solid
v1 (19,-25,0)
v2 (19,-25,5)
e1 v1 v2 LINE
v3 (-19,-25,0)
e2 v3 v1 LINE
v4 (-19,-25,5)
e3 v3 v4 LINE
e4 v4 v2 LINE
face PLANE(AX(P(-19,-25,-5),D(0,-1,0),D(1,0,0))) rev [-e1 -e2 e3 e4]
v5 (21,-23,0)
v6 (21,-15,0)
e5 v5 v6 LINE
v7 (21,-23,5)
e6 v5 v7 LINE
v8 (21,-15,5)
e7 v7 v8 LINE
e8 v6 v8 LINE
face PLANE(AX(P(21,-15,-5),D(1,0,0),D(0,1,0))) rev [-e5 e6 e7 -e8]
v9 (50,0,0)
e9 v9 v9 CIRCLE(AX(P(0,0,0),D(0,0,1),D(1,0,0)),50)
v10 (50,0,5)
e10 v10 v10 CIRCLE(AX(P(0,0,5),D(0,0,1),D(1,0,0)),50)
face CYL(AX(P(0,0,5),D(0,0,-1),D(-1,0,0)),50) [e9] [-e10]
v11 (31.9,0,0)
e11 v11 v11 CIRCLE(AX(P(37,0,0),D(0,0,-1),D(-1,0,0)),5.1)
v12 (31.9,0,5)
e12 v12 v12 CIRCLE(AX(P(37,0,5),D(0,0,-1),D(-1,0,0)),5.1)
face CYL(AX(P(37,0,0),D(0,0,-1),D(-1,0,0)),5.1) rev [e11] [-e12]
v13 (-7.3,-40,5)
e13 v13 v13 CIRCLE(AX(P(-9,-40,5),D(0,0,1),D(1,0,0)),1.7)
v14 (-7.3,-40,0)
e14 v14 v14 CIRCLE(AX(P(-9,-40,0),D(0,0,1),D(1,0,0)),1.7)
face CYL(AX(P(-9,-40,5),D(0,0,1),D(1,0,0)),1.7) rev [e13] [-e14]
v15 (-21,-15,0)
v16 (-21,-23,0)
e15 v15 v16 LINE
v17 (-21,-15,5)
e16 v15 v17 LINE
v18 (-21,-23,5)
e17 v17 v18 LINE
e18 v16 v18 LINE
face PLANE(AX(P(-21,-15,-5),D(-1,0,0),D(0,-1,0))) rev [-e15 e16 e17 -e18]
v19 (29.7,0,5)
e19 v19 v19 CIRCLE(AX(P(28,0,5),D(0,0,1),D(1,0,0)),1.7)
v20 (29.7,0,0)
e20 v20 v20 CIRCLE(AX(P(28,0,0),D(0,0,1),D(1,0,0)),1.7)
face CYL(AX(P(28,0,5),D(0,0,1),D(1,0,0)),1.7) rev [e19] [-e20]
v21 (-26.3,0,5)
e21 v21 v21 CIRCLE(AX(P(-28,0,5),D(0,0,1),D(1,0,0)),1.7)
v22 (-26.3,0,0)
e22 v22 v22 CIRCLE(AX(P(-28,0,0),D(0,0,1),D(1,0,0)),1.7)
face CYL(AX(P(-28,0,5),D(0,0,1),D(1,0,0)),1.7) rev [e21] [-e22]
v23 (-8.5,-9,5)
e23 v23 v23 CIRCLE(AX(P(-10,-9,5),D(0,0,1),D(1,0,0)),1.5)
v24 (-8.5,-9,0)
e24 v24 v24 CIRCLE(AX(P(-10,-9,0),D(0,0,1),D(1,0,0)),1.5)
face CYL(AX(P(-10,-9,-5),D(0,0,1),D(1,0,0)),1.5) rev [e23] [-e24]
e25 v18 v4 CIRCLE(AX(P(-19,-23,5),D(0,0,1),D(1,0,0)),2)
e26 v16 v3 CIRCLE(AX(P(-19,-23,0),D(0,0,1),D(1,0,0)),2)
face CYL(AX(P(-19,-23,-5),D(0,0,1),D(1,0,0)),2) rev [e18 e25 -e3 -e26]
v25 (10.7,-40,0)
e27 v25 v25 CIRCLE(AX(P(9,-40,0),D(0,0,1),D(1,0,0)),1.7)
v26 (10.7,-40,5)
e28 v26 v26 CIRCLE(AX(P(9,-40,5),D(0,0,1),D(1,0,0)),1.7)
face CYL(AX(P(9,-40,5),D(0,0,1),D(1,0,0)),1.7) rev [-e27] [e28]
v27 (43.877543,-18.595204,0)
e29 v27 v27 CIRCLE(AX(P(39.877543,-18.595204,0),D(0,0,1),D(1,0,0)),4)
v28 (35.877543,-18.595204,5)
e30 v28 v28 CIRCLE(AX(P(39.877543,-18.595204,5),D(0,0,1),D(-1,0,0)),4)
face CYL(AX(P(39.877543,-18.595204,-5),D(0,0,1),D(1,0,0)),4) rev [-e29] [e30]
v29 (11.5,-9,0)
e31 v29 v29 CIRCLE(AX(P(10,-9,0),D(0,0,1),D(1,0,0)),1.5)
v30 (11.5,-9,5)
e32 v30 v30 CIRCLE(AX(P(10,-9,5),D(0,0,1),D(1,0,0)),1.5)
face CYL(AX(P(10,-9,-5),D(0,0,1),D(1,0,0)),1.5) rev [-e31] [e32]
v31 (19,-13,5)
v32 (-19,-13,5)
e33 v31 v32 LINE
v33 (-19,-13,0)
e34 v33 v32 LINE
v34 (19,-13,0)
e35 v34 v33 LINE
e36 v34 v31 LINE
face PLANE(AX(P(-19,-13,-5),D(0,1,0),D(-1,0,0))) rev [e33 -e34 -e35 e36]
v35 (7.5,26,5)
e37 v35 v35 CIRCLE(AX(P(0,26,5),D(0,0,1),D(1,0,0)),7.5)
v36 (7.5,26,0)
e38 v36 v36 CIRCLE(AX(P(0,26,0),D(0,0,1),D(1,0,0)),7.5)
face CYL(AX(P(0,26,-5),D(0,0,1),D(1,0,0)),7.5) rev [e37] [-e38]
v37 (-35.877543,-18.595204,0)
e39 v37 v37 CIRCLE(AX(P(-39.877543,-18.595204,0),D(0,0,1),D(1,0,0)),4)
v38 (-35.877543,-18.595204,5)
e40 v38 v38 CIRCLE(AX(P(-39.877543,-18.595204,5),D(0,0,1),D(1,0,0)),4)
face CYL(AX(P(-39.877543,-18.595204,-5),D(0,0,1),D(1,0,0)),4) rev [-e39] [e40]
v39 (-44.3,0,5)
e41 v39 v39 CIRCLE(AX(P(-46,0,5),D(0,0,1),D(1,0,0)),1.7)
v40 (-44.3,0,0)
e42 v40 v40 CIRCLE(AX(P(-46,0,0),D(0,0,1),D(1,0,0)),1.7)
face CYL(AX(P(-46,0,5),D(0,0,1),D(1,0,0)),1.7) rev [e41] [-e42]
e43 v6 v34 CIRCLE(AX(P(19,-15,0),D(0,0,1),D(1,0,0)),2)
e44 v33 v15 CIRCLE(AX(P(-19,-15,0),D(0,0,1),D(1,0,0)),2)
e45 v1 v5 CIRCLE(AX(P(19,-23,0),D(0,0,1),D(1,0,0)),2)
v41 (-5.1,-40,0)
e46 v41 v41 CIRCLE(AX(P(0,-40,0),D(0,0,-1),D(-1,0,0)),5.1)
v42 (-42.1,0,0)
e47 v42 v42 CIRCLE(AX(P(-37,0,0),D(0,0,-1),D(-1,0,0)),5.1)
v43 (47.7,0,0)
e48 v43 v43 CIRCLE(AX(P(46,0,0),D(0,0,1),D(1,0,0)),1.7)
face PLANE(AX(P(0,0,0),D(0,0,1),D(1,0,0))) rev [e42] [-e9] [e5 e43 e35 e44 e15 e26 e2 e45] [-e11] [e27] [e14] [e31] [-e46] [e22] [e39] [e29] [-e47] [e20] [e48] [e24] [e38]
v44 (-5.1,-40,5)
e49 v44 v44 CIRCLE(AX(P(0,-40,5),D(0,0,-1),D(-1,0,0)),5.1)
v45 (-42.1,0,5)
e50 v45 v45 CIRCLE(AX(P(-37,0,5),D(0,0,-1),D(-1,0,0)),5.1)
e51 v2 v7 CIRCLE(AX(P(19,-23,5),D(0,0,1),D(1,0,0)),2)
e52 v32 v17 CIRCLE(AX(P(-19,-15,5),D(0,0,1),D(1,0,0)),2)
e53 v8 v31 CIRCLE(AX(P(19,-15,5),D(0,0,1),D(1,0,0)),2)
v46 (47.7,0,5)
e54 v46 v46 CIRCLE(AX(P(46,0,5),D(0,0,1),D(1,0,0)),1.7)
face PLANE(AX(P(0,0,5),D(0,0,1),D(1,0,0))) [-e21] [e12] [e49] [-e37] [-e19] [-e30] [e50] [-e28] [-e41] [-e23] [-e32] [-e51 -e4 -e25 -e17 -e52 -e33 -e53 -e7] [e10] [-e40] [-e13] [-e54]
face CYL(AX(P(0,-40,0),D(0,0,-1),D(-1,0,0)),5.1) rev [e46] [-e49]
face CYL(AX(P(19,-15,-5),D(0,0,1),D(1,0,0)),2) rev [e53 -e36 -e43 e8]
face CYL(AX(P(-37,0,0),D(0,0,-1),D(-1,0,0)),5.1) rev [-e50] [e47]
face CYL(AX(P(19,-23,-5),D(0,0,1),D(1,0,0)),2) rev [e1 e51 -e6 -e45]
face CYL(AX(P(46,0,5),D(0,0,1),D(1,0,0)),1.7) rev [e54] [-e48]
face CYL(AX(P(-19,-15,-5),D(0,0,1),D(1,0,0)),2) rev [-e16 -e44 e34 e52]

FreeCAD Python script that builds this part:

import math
import FreeCAD as App
import Part
import Sketcher
Q = App.Units.Quantity

doc = App.newDocument("Part")
body = doc.addObject("PartDesign::Body", "Body")

# Sketch on XY plane
sketch1 = body.newObject("Sketcher::SketchObject", "Sketch")
sketch1.AttachmentSupport = (doc.getObject("XY_Plane"), [""])
sketch1.MapMode = "FlatFace"
sketch1.addGeometry(Part.Circle(App.Vector(0, 0, 0), App.Vector(0, 0, 1), 50), False)
sketch1.addConstraint([
    Sketcher.Constraint("Coincident", 0, 3, -1, 1),
    Sketcher.Constraint("Diameter", 0, Q("100 mm")),
])
pad1 = body.newObject("PartDesign::Pad", "Pad")
pad1.Profile = sketch1
pad1.Length = 5

# Sketch on XY plane
sketch2 = body.newObject("Sketcher::SketchObject", "Sketch001")
sketch2.AttachmentSupport = (doc.getObject("XY_Plane"), [""])
sketch2.MapMode = "FlatFace"
sketch2.addGeometry([
    Part.Circle(App.Vector(-37, 0, 0), App.Vector(0, 0, 1), 5),
    Part.Circle(App.Vector(37, 0, 0), App.Vector(0, 0, 1), 5),
    Part.Circle(App.Vector(0, -40, 0), App.Vector(0, 0, 1), 5),
], False)
sketch2.addConstraint([
    Sketcher.Constraint("Equal", 0, 1),
    Sketcher.Constraint("Equal", 1, 2),
    Sketcher.Constraint("Symmetric", 0, 3, 1, 3, -1, 1),
    Sketcher.Constraint("PointOnObject", 0, 3, -1),
    Sketcher.Constraint("PointOnObject", 2, 3, -2),
    Sketcher.Constraint("Diameter", 0, Q("10.2 mm")),
    Sketcher.Constraint("DistanceX", 0, 3, -1, 1, Q("37 mm")),
    Sketcher.Constraint("DistanceY", 2, 3, -1, 1, Q("40 mm")),
])
doc.recompute()
hole = body.newObject("PartDesign::Hole", "Hole")
hole.Profile = sketch2
hole.ThreadType = "None"
hole.Diameter = 10.2
hole.DepthType = "ThroughAll"
hole.Reversed = True

# Sketch on XY plane
sketch3 = body.newObject("Sketcher::SketchObject", "Sketch002")
sketch3.AttachmentSupport = (doc.getObject("XY_Plane"), [""])
sketch3.MapMode = "FlatFace"
sketch3.AttachmentOffset = App.Placement(App.Vector(0, 0, 5), App.Rotation())
sketch3.addGeometry([
    Part.Circle(App.Vector(46, 0, 0), App.Vector(0, 0, 1), 1.7),  # 0
    Part.Circle(App.Vector(28, 0, 0), App.Vector(0, 0, 1), 1.7),  # 1
    Part.Circle(App.Vector(9, -40, 0), App.Vector(0, 0, 1), 1.7),  # 2
    Part.Circle(App.Vector(-9, -40, 0), App.Vector(0, 0, 1), 1.7),  # 3
    Part.Circle(App.Vector(-46, 0, 0), App.Vector(0, 0, 1), 1.7),  # 4
    Part.Circle(App.Vector(-28, 0, 0), App.Vector(0, 0, 1), 1.7),  # 5
], False)
sketch3.addConstraint([
    Sketcher.Constraint("Equal", 0, 1),
    Sketcher.Constraint("Equal", 1, 2),
    Sketcher.Constraint("Equal", 2, 3),
    Sketcher.Constraint("Equal", 3, 4),
    Sketcher.Constraint("Equal", 4, 5),
    Sketcher.Constraint("Symmetric", 0, 3, 4, 3, -1, 1),
    Sketcher.Constraint("Symmetric", 1, 3, 5, 3, -1, 1),
    Sketcher.Constraint("Symmetric", 2, 3, 3, 3, -2),
    Sketcher.Constraint("PointOnObject", 0, 3, -1),
    Sketcher.Constraint("PointOnObject", 1, 3, -1),
    Sketcher.Constraint("Diameter", 0, Q("3.4 mm")),
    Sketcher.Constraint("DistanceX", -1, 1, 0, 3, Q("46 mm")),
    Sketcher.Constraint("DistanceX", -1, 1, 1, 3, Q("28 mm")),
    Sketcher.Constraint("DistanceX", -1, 1, 2, 3, Q("9 mm")),
    Sketcher.Constraint("DistanceY", 2, 3, -1, 1, Q("40 mm")),
])
doc.recompute()
hole2 = body.newObject("PartDesign::Hole", "Hole001")
hole2.Profile = sketch3
hole2.ThreadType = "None"
hole2.Diameter = 3.4
hole2.DepthType = "ThroughAll"

# Sketch on XY plane
sketch4 = body.newObject("Sketcher::SketchObject", "Sketch003")
sketch4.AttachmentSupport = (doc.getObject("XY_Plane"), [""])
sketch4.MapMode = "FlatFace"
sketch4.AttachmentOffset = App.Placement(App.Vector(0, 0, 5), App.Rotation())
sketch4.addGeometry(Part.Circle(App.Vector(0, 26, 0), App.Vector(0, 0, 1), 8), False)
sketch4.addConstraint([
    Sketcher.Constraint("PointOnObject", 0, 3, -2),
    Sketcher.Constraint("Diameter", 0, Q("15 mm")),
    Sketcher.Constraint("DistanceY", -1, 1, 0, 3, Q("26 mm")),
])
pocket1 = body.newObject("PartDesign::Pocket", "Pocket")
pocket1.Profile = sketch4
pocket1.Length = 10

# Sketch on XY plane
sketch5 = body.newObject("Sketcher::SketchObject", "Sketch004")
sketch5.AttachmentSupport = (doc.getObject("XY_Plane"), [""])
sketch5.MapMode = "FlatFace"
sketch5.AttachmentOffset = App.Placement(App.Vector(0, 0, 5), App.Rotation())
sketch5.addGeometry([
    Part.Circle(App.Vector(10, -9, 0), App.Vector(0, 0, 1), 1.5),  # 0
    Part.Circle(App.Vector(-10, -9, 0), App.Vector(0, 0, 1), 1.5),  # 1
    Part.LineSegment(App.Vector(19, -13, 0), App.Vector(-19, -13, 0)),  # 2
    Part.ArcOfCircle(Part.Circle(App.Vector(-19, -15, 0), App.Vector(0, 0, 1), 2), math.radians(90), math.radians(180)),  # 3
    Part.LineSegment(App.Vector(-21, -15, 0), App.Vector(-21, -23, 0)),  # 4
    Part.ArcOfCircle(Part.Circle(App.Vector(-19, -23, 0), App.Vector(0, 0, 1), 2), math.radians(-180), math.radians(-90)),  # 5
    Part.LineSegment(App.Vector(-19, -25, 0), App.Vector(19, -25, 0)),  # 6
    Part.ArcOfCircle(Part.Circle(App.Vector(19, -23, 0), App.Vector(0, 0, 1), 2), math.radians(-90), math.radians(0)),  # 7
    Part.LineSegment(App.Vector(21, -23, 0), App.Vector(21, -15, 0)),  # 8
    Part.ArcOfCircle(Part.Circle(App.Vector(19, -15, 0), App.Vector(0, 0, 1), 2), math.radians(0), math.radians(90)),  # 9
], False)
sketch5.addConstraint([
    Sketcher.Constraint("Tangent", 2, 2, 3, 1),
    Sketcher.Constraint("Tangent", 3, 2, 4, 1),
    Sketcher.Constraint("Tangent", 4, 2, 5, 1),
    Sketcher.Constraint("Tangent", 5, 2, 6, 1),
    Sketcher.Constraint("Tangent", 6, 2, 7, 1),
    Sketcher.Constraint("Tangent", 7, 2, 8, 1),
    Sketcher.Constraint("Tangent", 8, 2, 9, 1),
    Sketcher.Constraint("Tangent", 9, 2, 2, 1),
    Sketcher.Constraint("Horizontal", 2),
    Sketcher.Constraint("Vertical", 4),
    Sketcher.Constraint("Horizontal", 6),
    Sketcher.Constraint("Vertical", 8),
    Sketcher.Constraint("Equal", 0, 1),
    Sketcher.Constraint("Equal", 3, 5),
    Sketcher.Constraint("Equal", 5, 7),
    Sketcher.Constraint("Equal", 7, 9),
    Sketcher.Constraint("Symmetric", 0, 3, 1, 3, -2),
    Sketcher.Constraint("Diameter", 0, Q("3 mm")),
    Sketcher.Constraint("Radius", 3, Q("2 mm")),
    Sketcher.Constraint("DistanceX", 2, 2, 2, 1, Q("38 mm")),
    Sketcher.Constraint("DistanceY", 4, 2, 4, 1, Q("8 mm")),
    Sketcher.Constraint("DistanceX", -1, 1, 0, 3, Q("10 mm")),
    Sketcher.Constraint("DistanceY", 0, 3, -1, 1, Q("9 mm")),
    Sketcher.Constraint("DistanceX", 3, 3, -1, 1, Q("19 mm")),
    Sketcher.Constraint("DistanceY", 3, 3, -1, 1, Q("15 mm")),
])
pocket2 = body.newObject("PartDesign::Pocket", "Pocket001")
pocket2.Profile = sketch5
pocket2.Length = 10

# Sketch on XY plane
sketch6 = body.newObject("Sketcher::SketchObject", "Sketch005")
sketch6.AttachmentSupport = (doc.getObject("XY_Plane"), [""])
sketch6.MapMode = "FlatFace"
sketch6.AttachmentOffset = App.Placement(App.Vector(0, 0, 5), App.Rotation())
sketch6.addGeometry([
    Part.Circle(App.Vector(-39.9, -18.6, 0), App.Vector(0, 0, 1), 4),
    Part.Circle(App.Vector(39.9, -18.6, 0), App.Vector(0, 0, 1), 4),
], False)
sketch6.addConstraint([
    Sketcher.Constraint("Equal", 0, 1),
    Sketcher.Constraint("Symmetric", 0, 3, 1, 3, -2),
    Sketcher.Constraint("Diameter", 0, Q("8 mm")),
    Sketcher.Constraint("DistanceX", 0, 3, -1, 1, Q("39.877543 mm")),
    Sketcher.Constraint("DistanceY", 0, 3, -1, 1, Q("18.595204 mm")),
])
pocket3 = body.newObject("PartDesign::Pocket", "Pocket002")
pocket3.Profile = sketch6
pocket3.Length = 10

doc.recompute()
